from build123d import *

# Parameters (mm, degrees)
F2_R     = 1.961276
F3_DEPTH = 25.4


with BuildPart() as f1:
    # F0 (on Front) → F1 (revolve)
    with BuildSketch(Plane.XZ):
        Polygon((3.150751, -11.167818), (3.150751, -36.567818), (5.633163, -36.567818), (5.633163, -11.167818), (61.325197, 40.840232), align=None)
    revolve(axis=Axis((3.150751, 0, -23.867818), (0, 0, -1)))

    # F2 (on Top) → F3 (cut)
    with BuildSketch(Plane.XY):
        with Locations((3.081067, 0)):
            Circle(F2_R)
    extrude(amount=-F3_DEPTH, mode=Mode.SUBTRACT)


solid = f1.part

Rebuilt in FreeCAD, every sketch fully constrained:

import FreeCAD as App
import Part
import Sketcher

V = App.Vector
Q = App.Units.Quantity

doc = App.newDocument("Part")
body = doc.addObject("PartDesign::Body", "Body")

# Sketch on XZ plane
sketch1 = body.newObject("Sketcher::SketchObject", "Sketch")
sketch1.AttachmentSupport = (doc.getObject("XZ_Plane"), [""])
sketch1.MapMode = "FlatFace"
sketch1.addGeometry(Part.LineSegment(V(3.150751, -11.167818, 0), V(3.150751, -36.567818, 0)), False)
sketch1.addGeometry(Part.LineSegment(V(3.150751, -36.567818, 0), V(5.633163, -36.567818, 0)), False)
sketch1.addGeometry(Part.LineSegment(V(5.633163, -36.567818, 0), V(5.633163, -11.167818, 0)), False)
sketch1.addGeometry(Part.LineSegment(V(5.633163, -11.167818, 0), V(61.325197, 40.840232, 0)), False)
sketch1.addGeometry(Part.LineSegment(V(61.325197, 40.840232, 0), V(3.150751, -11.167818, 0)), False)
sketch1.addGeometry(Part.LineSegment(V(3.150751, 40.840232, 0), V(3.150751, -36.567818, 0)), True)  # axis
sketch1.addConstraint(Sketcher.Constraint("Coincident", 0, 2, 1, 1))
sketch1.addConstraint(Sketcher.Constraint("Coincident", 1, 2, 2, 1))
sketch1.addConstraint(Sketcher.Constraint("Coincident", 2, 2, 3, 1))
sketch1.addConstraint(Sketcher.Constraint("Coincident", 3, 2, 4, 1))
sketch1.addConstraint(Sketcher.Constraint("Coincident", 4, 2, 0, 1))
sketch1.addConstraint(Sketcher.Constraint("Vertical", 0))
sketch1.addConstraint(Sketcher.Constraint("Horizontal", 1))
sketch1.addConstraint(Sketcher.Constraint("Vertical", 2))
sketch1.addConstraint(Sketcher.Constraint("Vertical", 5))
sketch1.addConstraint(Sketcher.Constraint("Coincident", 5, 2, 0, 2))
sketch1.addConstraint(Sketcher.Constraint("Horizontal", 2, 2, 4, 2))
sketch1.addConstraint(Sketcher.Constraint("Horizontal", 3, 2, 5, 1))
sketch1.addConstraint(Sketcher.Constraint("DistanceY", 0, 2, 0, 1, Q("1 in")))
sketch1.addConstraint(Sketcher.Constraint("Distance", 3, Q("3 in")))
sketch1.addConstraint(Sketcher.Constraint("DistanceX", 1, 1, 1, 2, 2.482412))
sketch1.addConstraint(Sketcher.Constraint("DistanceY", 5, 2, 5, 1, 77.40805))
sketch1.addConstraint(Sketcher.Constraint("DistanceX", -1, 1, 0, 2, 3.150751))
sketch1.addConstraint(Sketcher.Constraint("DistanceY", 0, 2, -1, 1, 36.567818))
revolution = body.newObject("PartDesign::Revolution", "Revolution")
revolution.Profile = sketch1
revolution.ReferenceAxis = (sketch1, ["Axis0"])
revolution.Angle = 360

# Sketch on XY plane
sketch2 = body.newObject("Sketcher::SketchObject", "Sketch001")
sketch2.AttachmentSupport = (doc.getObject("XY_Plane"), [""])
sketch2.MapMode = "FlatFace"
sketch2.addGeometry(Part.Circle(V(3.081067, 0, 0), V(0, 0, 1), 1.961276), False)
sketch2.addConstraint(Sketcher.Constraint("PointOnObject", 0, 3, -1))
sketch2.addConstraint(Sketcher.Constraint("Diameter", 0, 3.922552))
sketch2.addConstraint(Sketcher.Constraint("DistanceX", -1, 1, 0, 3, 3.081067))
pocket1 = body.newObject("PartDesign::Pocket", "Pocket")
pocket1.Profile = sketch2
pocket1.Length = Q("1 in")

doc.recompute()
